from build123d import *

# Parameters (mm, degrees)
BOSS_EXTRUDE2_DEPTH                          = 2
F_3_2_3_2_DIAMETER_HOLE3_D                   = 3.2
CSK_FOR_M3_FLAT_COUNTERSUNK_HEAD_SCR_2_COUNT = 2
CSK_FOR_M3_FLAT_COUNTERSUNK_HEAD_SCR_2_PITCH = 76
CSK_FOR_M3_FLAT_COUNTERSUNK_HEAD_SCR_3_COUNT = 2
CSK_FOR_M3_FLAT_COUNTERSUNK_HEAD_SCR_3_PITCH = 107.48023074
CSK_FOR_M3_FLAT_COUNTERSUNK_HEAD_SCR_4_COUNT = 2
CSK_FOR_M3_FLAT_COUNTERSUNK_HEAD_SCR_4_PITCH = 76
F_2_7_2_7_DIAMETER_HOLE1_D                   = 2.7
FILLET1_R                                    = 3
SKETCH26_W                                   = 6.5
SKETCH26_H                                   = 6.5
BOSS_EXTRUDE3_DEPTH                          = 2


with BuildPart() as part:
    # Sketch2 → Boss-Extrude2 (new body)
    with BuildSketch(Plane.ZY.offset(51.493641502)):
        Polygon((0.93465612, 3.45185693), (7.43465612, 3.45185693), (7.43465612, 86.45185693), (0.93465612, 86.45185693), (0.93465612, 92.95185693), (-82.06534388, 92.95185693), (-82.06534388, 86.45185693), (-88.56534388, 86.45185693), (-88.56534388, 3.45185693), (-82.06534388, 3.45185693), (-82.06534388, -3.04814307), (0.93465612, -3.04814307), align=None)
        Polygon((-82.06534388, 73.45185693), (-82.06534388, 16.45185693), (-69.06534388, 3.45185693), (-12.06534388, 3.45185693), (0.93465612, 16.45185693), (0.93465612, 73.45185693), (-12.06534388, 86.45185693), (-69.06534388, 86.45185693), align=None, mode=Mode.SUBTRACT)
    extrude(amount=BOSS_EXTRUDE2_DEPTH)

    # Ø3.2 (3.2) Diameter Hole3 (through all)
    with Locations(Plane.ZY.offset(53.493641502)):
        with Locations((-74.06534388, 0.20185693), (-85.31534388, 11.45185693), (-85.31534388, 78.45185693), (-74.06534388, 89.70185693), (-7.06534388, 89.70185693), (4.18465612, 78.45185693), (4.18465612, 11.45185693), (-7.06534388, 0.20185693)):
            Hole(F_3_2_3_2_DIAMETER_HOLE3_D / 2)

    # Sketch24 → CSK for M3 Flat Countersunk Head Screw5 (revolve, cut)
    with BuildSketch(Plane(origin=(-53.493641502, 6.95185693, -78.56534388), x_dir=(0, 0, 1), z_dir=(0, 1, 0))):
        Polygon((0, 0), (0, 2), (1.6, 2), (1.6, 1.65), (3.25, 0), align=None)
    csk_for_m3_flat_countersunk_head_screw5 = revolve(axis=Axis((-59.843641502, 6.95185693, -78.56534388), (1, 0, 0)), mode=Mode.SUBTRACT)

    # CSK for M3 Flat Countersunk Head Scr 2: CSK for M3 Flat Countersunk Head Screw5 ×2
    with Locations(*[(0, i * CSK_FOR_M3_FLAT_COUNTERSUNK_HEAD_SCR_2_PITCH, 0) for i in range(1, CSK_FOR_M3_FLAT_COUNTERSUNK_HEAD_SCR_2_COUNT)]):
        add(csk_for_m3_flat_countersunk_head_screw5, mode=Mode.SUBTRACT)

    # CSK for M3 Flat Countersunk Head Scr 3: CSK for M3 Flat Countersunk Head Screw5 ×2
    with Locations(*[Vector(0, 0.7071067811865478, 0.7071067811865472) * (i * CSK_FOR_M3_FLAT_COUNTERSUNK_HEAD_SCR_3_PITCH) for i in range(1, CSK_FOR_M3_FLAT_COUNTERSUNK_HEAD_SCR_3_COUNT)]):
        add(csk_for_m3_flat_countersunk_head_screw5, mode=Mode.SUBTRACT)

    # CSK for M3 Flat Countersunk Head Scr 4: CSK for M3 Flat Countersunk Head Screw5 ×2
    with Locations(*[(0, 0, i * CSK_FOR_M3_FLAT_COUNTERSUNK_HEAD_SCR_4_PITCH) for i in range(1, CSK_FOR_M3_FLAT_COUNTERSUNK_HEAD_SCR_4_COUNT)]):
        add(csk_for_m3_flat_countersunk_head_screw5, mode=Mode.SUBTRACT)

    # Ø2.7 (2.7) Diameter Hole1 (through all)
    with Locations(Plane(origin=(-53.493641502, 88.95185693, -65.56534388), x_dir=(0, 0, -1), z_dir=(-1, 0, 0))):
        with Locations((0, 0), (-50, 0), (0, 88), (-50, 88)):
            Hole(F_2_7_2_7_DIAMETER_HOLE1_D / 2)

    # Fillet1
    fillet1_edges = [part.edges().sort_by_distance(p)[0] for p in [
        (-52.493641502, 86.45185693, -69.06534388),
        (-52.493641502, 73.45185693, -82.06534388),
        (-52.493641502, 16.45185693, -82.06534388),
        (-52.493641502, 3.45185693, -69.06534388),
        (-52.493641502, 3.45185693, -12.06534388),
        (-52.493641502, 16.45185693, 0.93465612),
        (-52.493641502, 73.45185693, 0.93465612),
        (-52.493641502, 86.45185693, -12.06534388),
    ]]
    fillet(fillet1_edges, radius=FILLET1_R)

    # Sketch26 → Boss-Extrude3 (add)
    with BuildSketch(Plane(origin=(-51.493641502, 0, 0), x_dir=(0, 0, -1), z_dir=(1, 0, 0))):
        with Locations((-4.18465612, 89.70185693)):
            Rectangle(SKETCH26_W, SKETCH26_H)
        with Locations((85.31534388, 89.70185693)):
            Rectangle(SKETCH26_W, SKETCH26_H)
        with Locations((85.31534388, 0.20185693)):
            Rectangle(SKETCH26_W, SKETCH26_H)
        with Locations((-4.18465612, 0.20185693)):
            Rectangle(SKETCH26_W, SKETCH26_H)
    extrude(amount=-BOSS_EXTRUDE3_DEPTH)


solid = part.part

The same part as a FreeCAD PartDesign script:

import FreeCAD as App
import Part
import Sketcher
Q = App.Units.Quantity


def edges_at(feature, points):
    """Names of the edges that pass closest to the given points."""
    edges = feature.Shape.Edges
    near = lambda p: min(range(len(edges)), key=lambda i: edges[i].distToShape(Part.Vertex(*p))[0])
    return sorted({f"Edge{near(p) + 1}" for p in points})

doc = App.newDocument("Part")
body = doc.addObject("PartDesign::Body", "Body")

sketch1 = doc.addObject("Sketcher::SketchObject", "Sketch")
body.addObject(sketch1)
sketch1.AttachmentSupport = (doc.YZ_Plane, [""])
sketch1.MapMode = "FlatFace"
sketch1.AttachmentOffset = App.Placement(App.Vector(0, 0, -51.493642), App.Rotation())
sketch1.addGeometry(Part.LineSegment(App.Vector(3, 1, 0), App.Vector(3, 7, 0)), False)
sketch1.addGeometry(Part.LineSegment(App.Vector(3, 7, 0), App.Vector(86, 7, 0)), False)
sketch1.addGeometry(Part.LineSegment(App.Vector(86, 7, 0), App.Vector(86, 1, 0)), False)
sketch1.addGeometry(Part.LineSegment(App.Vector(86, 1, 0), App.Vector(93, 1, 0)), False)
sketch1.addGeometry(Part.LineSegment(App.Vector(93, 1, 0), App.Vector(93, -82, 0)), False)
sketch1.addGeometry(Part.LineSegment(App.Vector(93, -82, 0), App.Vector(86, -82, 0)), False)
sketch1.addGeometry(Part.LineSegment(App.Vector(86, -82, 0), App.Vector(86, -89, 0)), False)
sketch1.addGeometry(Part.LineSegment(App.Vector(86, -89, 0), App.Vector(3, -89, 0)), False)
sketch1.addGeometry(Part.LineSegment(App.Vector(3, -89, 0), App.Vector(3, -82, 0)), False)
sketch1.addGeometry(Part.LineSegment(App.Vector(3, -82, 0), App.Vector(-3, -82, 0)), False)
sketch1.addGeometry(Part.LineSegment(App.Vector(-3, -82, 0), App.Vector(-3, 1, 0)), False)
sketch1.addGeometry(Part.LineSegment(App.Vector(-3, 1, 0), App.Vector(3, 1, 0)), False)
sketch1.addGeometry(Part.LineSegment(App.Vector(16, -82, 0), App.Vector(73, -82, 0)), False)
sketch1.addGeometry(Part.LineSegment(App.Vector(73, -82, 0), App.Vector(86, -69, 0)), False)
sketch1.addGeometry(Part.LineSegment(App.Vector(86, -69, 0), App.Vector(86, -12, 0)), False)
sketch1.addGeometry(Part.LineSegment(App.Vector(86, -12, 0), App.Vector(73, 1, 0)), False)
sketch1.addGeometry(Part.LineSegment(App.Vector(73, 1, 0), App.Vector(16, 1, 0)), False)
sketch1.addGeometry(Part.LineSegment(App.Vector(16, 1, 0), App.Vector(3, -12, 0)), False)
sketch1.addGeometry(Part.LineSegment(App.Vector(3, -12, 0), App.Vector(3, -69, 0)), False)
sketch1.addGeometry(Part.LineSegment(App.Vector(3, -69, 0), App.Vector(16, -82, 0)), False)
sketch1.addConstraint(Sketcher.Constraint("Coincident", 0, 2, 1, 1))
sketch1.addConstraint(Sketcher.Constraint("Coincident", 1, 2, 2, 1))
sketch1.addConstraint(Sketcher.Constraint("Coincident", 2, 2, 3, 1))
sketch1.addConstraint(Sketcher.Constraint("Coincident", 3, 2, 4, 1))
sketch1.addConstraint(Sketcher.Constraint("Coincident", 4, 2, 5, 1))
sketch1.addConstraint(Sketcher.Constraint("Coincident", 5, 2, 6, 1))
sketch1.addConstraint(Sketcher.Constraint("Coincident", 6, 2, 7, 1))
sketch1.addConstraint(Sketcher.Constraint("Coincident", 7, 2, 8, 1))
sketch1.addConstraint(Sketcher.Constraint("Coincident", 8, 2, 9, 1))
sketch1.addConstraint(Sketcher.Constraint("Coincident", 9, 2, 10, 1))
sketch1.addConstraint(Sketcher.Constraint("Coincident", 10, 2, 11, 1))
sketch1.addConstraint(Sketcher.Constraint("Coincident", 11, 2, 0, 1))
sketch1.addConstraint(Sketcher.Constraint("Coincident", 12, 2, 13, 1))
sketch1.addConstraint(Sketcher.Constraint("Coincident", 13, 2, 14, 1))
sketch1.addConstraint(Sketcher.Constraint("Coincident", 14, 2, 15, 1))
sketch1.addConstraint(Sketcher.Constraint("Coincident", 15, 2, 16, 1))
sketch1.addConstraint(Sketcher.Constraint("Coincident", 16, 2, 17, 1))
sketch1.addConstraint(Sketcher.Constraint("Coincident", 17, 2, 18, 1))
sketch1.addConstraint(Sketcher.Constraint("Coincident", 18, 2, 19, 1))
sketch1.addConstraint(Sketcher.Constraint("Coincident", 19, 2, 12, 1))
sketch1.addConstraint(Sketcher.Constraint("Vertical", 0))
sketch1.addConstraint(Sketcher.Constraint("Horizontal", 1))
sketch1.addConstraint(Sketcher.Constraint("Vertical", 2))
sketch1.addConstraint(Sketcher.Constraint("Horizontal", 3))
sketch1.addConstraint(Sketcher.Constraint("Vertical", 4))
sketch1.addConstraint(Sketcher.Constraint("Horizontal", 5))
sketch1.addConstraint(Sketcher.Constraint("Vertical", 6))
sketch1.addConstraint(Sketcher.Constraint("Horizontal", 7))
sketch1.addConstraint(Sketcher.Constraint("Vertical", 8))
sketch1.addConstraint(Sketcher.Constraint("Horizontal", 9))
sketch1.addConstraint(Sketcher.Constraint("Vertical", 10))
sketch1.addConstraint(Sketcher.Constraint("Horizontal", 11))
sketch1.addConstraint(Sketcher.Constraint("Horizontal", 12))
sketch1.addConstraint(Sketcher.Constraint("Vertical", 14))
sketch1.addConstraint(Sketcher.Constraint("Horizontal", 16))
sketch1.addConstraint(Sketcher.Constraint("Vertical", 18))
sketch1.addConstraint(Sketcher.Constraint("Perpendicular", 13, 15))
sketch1.addConstraint(Sketcher.Constraint("Perpendicular", 15, 17))
sketch1.addConstraint(Sketcher.Constraint("Perpendicular", 17, 19))
sketch1.addConstraint(Sketcher.Constraint("Horizontal", 5, 2, 8, 2))
sketch1.addConstraint(Sketcher.Constraint("Horizontal", 3, 2, 10, 2))
sketch1.addConstraint(Sketcher.Constraint("Horizontal", 9, 2, 12, 2))
sketch1.addConstraint(Sketcher.Constraint("Horizontal", 11, 2, 15, 2))
sketch1.addConstraint(Sketcher.Constraint("Horizontal", 14, 2, 17, 2))
sketch1.addConstraint(Sketcher.Constraint("Horizontal", 13, 2, 18, 2))
sketch1.addConstraint(Sketcher.Constraint("Vertical", 2, 2, 5, 2))
sketch1.addConstraint(Sketcher.Constraint("Vertical", 0, 2, 7, 2))
sketch1.addConstraint(Sketcher.Constraint("Vertical", 6, 2, 13, 2))
sketch1.addConstraint(Sketcher.Constraint("Vertical", 12, 2, 15, 2))
sketch1.addConstraint(Sketcher.Constraint("Vertical", 11, 2, 17, 2))
sketch1.addConstraint(Sketcher.Constraint("Vertical", 16, 2, 19, 2))
sketch1.addConstraint(Sketcher.Constraint("Equal", 5, 9))
sketch1.addConstraint(Sketcher.Constraint("Equal", 11, 0))
sketch1.addConstraint(Sketcher.Constraint("Equal", 7, 4))
sketch1.addConstraint(Sketcher.Constraint("Equal", 2, 6))
sketch1.addConstraint(Sketcher.Constraint("DistanceX", 1, 1, 1, 2, 83.0))
sketch1.addConstraint(Sketcher.Constraint("DistanceX", 12, 1, 12, 2, 57.0))
sketch1.addConstraint(Sketcher.Constraint("DistanceX", 3, 1, 3, 2, 6.5))
sketch1.addConstraint(Sketcher.Constraint("DistanceX", -1, 1, 0, 2, 3.451857))
sketch1.addConstraint(Sketcher.Constraint("DistanceY", -1, 1, 0, 2, 7.434656))
pad1 = doc.addObject("PartDesign::Pad", "Pad")
body.addObject(pad1)
pad1.Profile = sketch1
pad1.Length = 2
pad1.Reversed = True

sketch2 = doc.addObject("Sketcher::SketchObject", "Sketch001")
body.addObject(sketch2)
sketch2.AttachmentSupport = (doc.YZ_Plane, [""])
sketch2.MapMode = "FlatFace"
sketch2.AttachmentOffset = App.Placement(App.Vector(0, 0, -53.493642), App.Rotation())
sketch2.addGeometry(Part.Circle(App.Vector(0.2, -74.1, 0), App.Vector(0, 0, 1), 1.6), False)
sketch2.addGeometry(Part.Circle(App.Vector(11.5, -85.3, 0), App.Vector(0, 0, 1), 1.6), False)
sketch2.addGeometry(Part.Circle(App.Vector(78.5, -85.3, 0), App.Vector(0, 0, 1), 1.6), False)
sketch2.addGeometry(Part.Circle(App.Vector(89.7, -74.1, 0), App.Vector(0, 0, 1), 1.6), False)
sketch2.addGeometry(Part.Circle(App.Vector(89.7, -7.1, 0), App.Vector(0, 0, 1), 1.6), False)
sketch2.addGeometry(Part.Circle(App.Vector(78.5, 4.2, 0), App.Vector(0, 0, 1), 1.6), False)
sketch2.addGeometry(Part.Circle(App.Vector(11.5, 4.2, 0), App.Vector(0, 0, 1), 1.6), False)
sketch2.addGeometry(Part.Circle(App.Vector(0.2, -7.1, 0), App.Vector(0, 0, 1), 1.6), False)
sketch2.addConstraint(Sketcher.Constraint("Equal", 0, 1))
sketch2.addConstraint(Sketcher.Constraint("Equal", 1, 2))
sketch2.addConstraint(Sketcher.Constraint("Equal", 2, 3))
sketch2.addConstraint(Sketcher.Constraint("Equal", 3, 4))
sketch2.addConstraint(Sketcher.Constraint("Equal", 4, 5))
sketch2.addConstraint(Sketcher.Constraint("Equal", 5, 6))
sketch2.addConstraint(Sketcher.Constraint("Equal", 6, 7))
sketch2.addConstraint(Sketcher.Constraint("Horizontal", 1, 3, 2, 3))
sketch2.addConstraint(Sketcher.Constraint("Horizontal", 0, 3, 3, 3))
sketch2.addConstraint(Sketcher.Constraint("Horizontal", 5, 3, 6, 3))
sketch2.addConstraint(Sketcher.Constraint("Horizontal", 4, 3, 7, 3))
sketch2.addConstraint(Sketcher.Constraint("Vertical", 3, 3, 4, 3))
sketch2.addConstraint(Sketcher.Constraint("Vertical", 2, 3, 5, 3))
sketch2.addConstraint(Sketcher.Constraint("Vertical", 1, 3, 6, 3))
sketch2.addConstraint(Sketcher.Constraint("Vertical", 0, 3, 7, 3))
sketch2.addConstraint(Sketcher.Constraint("Diameter", 0, 3.2))
sketch2.addConstraint(Sketcher.Constraint("DistanceX", 1, 3, 2, 3, 67.0))
sketch2.addConstraint(Sketcher.Constraint("DistanceY", 3, 3, 4, 3, 67.0))
sketch2.addConstraint(Sketcher.Constraint("DistanceX", 0, 3, 3, 3, 89.5))
sketch2.addConstraint(Sketcher.Constraint("DistanceY", 2, 3, 5, 3, 89.5))
sketch2.addConstraint(Sketcher.Constraint("DistanceX", 0, 3, 1, 3, 11.25))
sketch2.addConstraint(Sketcher.Constraint("DistanceY", 1, 3, 0, 3, 11.25))
sketch2.addConstraint(Sketcher.Constraint("DistanceX", -1, 1, 0, 3, 0.201857))
sketch2.addConstraint(Sketcher.Constraint("DistanceY", 0, 3, -1, 1, 74.065344))
doc.recompute()
hole = doc.addObject("PartDesign::Hole", "Hole")
body.addObject(hole)
hole.Profile = sketch2
hole.ThreadType = "None"
hole.Diameter = 3.2
hole.DepthType = "ThroughAll"
hole.Reversed = True

sketch3 = doc.addObject("Sketcher::SketchObject", "Sketch002")
body.addObject(sketch3)
sketch3.AttachmentSupport = (doc.XZ_Plane, [""])
sketch3.MapMode = "FlatFace"
sketch3.AttachmentOffset = App.Placement(App.Vector(0, 0, -6.951857), App.Rotation())
sketch3.addGeometry(Part.LineSegment(App.Vector(-51.49, -78.57, 0), App.Vector(-53.49, -78.57, 0)), False)
sketch3.addGeometry(Part.LineSegment(App.Vector(-53.49, -78.57, 0), App.Vector(-53.49, -75.32, 0)), False)
sketch3.addGeometry(Part.LineSegment(App.Vector(-53.49, -75.32, 0), App.Vector(-51.84, -76.97, 0)), False)
sketch3.addGeometry(Part.LineSegment(App.Vector(-51.84, -76.97, 0), App.Vector(-51.49, -76.97, 0)), False)
sketch3.addGeometry(Part.LineSegment(App.Vector(-51.49, -76.97, 0), App.Vector(-51.49, -78.57, 0)), False)
sketch3.addGeometry(Part.LineSegment(App.Vector(-53.49, -78.57, 0), App.Vector(-51.49, -78.57, 0)), True)
sketch3.addConstraint(Sketcher.Constraint("Coincident", 0, 2, 1, 1))
sketch3.addConstraint(Sketcher.Constraint("Coincident", 1, 2, 2, 1))
sketch3.addConstraint(Sketcher.Constraint("Coincident", 2, 2, 3, 1))
sketch3.addConstraint(Sketcher.Constraint("Coincident", 3, 2, 4, 1))
sketch3.addConstraint(Sketcher.Constraint("Coincident", 4, 2, 0, 1))
sketch3.addConstraint(Sketcher.Constraint("Horizontal", 0))
sketch3.addConstraint(Sketcher.Constraint("Vertical", 1))
sketch3.addConstraint(Sketcher.Constraint("Horizontal", 3))
sketch3.addConstraint(Sketcher.Constraint("Vertical", 4))
sketch3.addConstraint(Sketcher.Constraint("Horizontal", 5))
sketch3.addConstraint(Sketcher.Constraint("Coincident", 5, 1, 0, 2))
sketch3.addConstraint(Sketcher.Constraint("Vertical", 3, 2, 5, 2))
sketch3.addConstraint(Sketcher.Constraint("DistanceX", 0, 2, 0, 1, 2.0))
sketch3.addConstraint(Sketcher.Constraint("Angle", 2, Q("-45 deg")))
sketch3.addConstraint(Sketcher.Constraint("DistanceY", 4, 2, 4, 1, 1.6))
sketch3.addConstraint(Sketcher.Constraint("DistanceX", 3, 1, 3, 2, 0.35))
sketch3.addConstraint(Sketcher.Constraint("DistanceX", 0, 2, -1, 1, 53.493642))
sketch3.addConstraint(Sketcher.Constraint("DistanceY", 0, 2, -1, 1, 78.565344))
groove = doc.addObject("PartDesign::Groove", "Groove")
body.addObject(groove)
groove.Profile = sketch3
groove.ReferenceAxis = (sketch3, ["Axis0"])
groove.Angle = 360
doc.recompute()

linearpattern = doc.addObject("PartDesign::LinearPattern", "LinearPattern")
body.addObject(linearpattern)
linearpattern.Originals = [groove]
linearpattern.Direction = (doc.Y_Axis, [""])
linearpattern.Mode = "offset"
linearpattern.Offset = 76
linearpattern.Occurrences = 2
body.Tip = linearpattern
doc.recompute()

datumline = doc.addObject("PartDesign::Line", "DatumLine")
body.addObject(datumline)
datumline.Placement = App.Placement(App.Vector(0, 0, 0), App.Rotation(App.Vector(0, 0, 1), App.Vector(0, 0.707106781, 0.707106781)))
linearpattern2 = doc.addObject("PartDesign::LinearPattern", "LinearPattern001")
body.addObject(linearpattern2)
linearpattern2.Originals = [groove]
linearpattern2.Direction = (datumline, [""])
linearpattern2.Mode = "offset"
linearpattern2.Offset = 107.480231
linearpattern2.Occurrences = 2
body.Tip = linearpattern2
doc.recompute()

linearpattern3 = doc.addObject("PartDesign::LinearPattern", "LinearPattern002")
body.addObject(linearpattern3)
linearpattern3.Originals = [groove]
linearpattern3.Direction = (doc.Z_Axis, [""])
linearpattern3.Mode = "offset"
linearpattern3.Offset = 76
linearpattern3.Occurrences = 2
body.Tip = linearpattern3

sketch4 = doc.addObject("Sketcher::SketchObject", "Sketch003")
body.addObject(sketch4)
sketch4.AttachmentSupport = (doc.YZ_Plane, [""])
sketch4.MapMode = "FlatFace"
sketch4.AttachmentOffset = App.Placement(App.Vector(0, 0, -53.493642), App.Rotation())
sketch4.addGeometry(Part.Circle(App.Vector(89, -65.6, 0), App.Vector(0, 0, 1), 1.4), False)
sketch4.addGeometry(Part.Circle(App.Vector(89, -15.6, 0), App.Vector(0, 0, 1), 1.4), False)
sketch4.addGeometry(Part.Circle(App.Vector(1, -65.6, 0), App.Vector(0, 0, 1), 1.4), False)
sketch4.addGeometry(Part.Circle(App.Vector(1, -15.6, 0), App.Vector(0, 0, 1), 1.4), False)
sketch4.addConstraint(Sketcher.Constraint("Equal", 0, 1))
sketch4.addConstraint(Sketcher.Constraint("Equal", 1, 2))
sketch4.addConstraint(Sketcher.Constraint("Equal", 2, 3))
sketch4.addConstraint(Sketcher.Constraint("Horizontal", 0, 3, 2, 3))
sketch4.addConstraint(Sketcher.Constraint("Horizontal", 1, 3, 3, 3))
sketch4.addConstraint(Sketcher.Constraint("Vertical", 0, 3, 1, 3))
sketch4.addConstraint(Sketcher.Constraint("Vertical", 2, 3, 3, 3))
sketch4.addConstraint(Sketcher.Constraint("Diameter", 0, 2.7))
sketch4.addConstraint(Sketcher.Constraint("DistanceY", 0, 3, 1, 3, 50.0))
sketch4.addConstraint(Sketcher.Constraint("DistanceX", 2, 3, 0, 3, 88.0))
sketch4.addConstraint(Sketcher.Constraint("DistanceX", -1, 1, 0, 3, 88.951857))
sketch4.addConstraint(Sketcher.Constraint("DistanceY", 0, 3, -1, 1, 65.565344))
doc.recompute()
hole2 = doc.addObject("PartDesign::Hole", "Hole001")
body.addObject(hole2)
hole2.Profile = sketch4
hole2.ThreadType = "None"
hole2.Diameter = 2.7
hole2.DepthType = "ThroughAll"
hole2.Reversed = True
doc.recompute()

fillet = doc.addObject("PartDesign::Fillet", "Fillet")
body.addObject(fillet)
fillet.Base = (hole2, edges_at(hole2, [
    (-52.494, 86.452, -69.065),
    (-52.494, 73.452, -82.065),
    (-52.494, 16.452, -82.065),
    (-52.494, 3.452, -69.065),
    (-52.494, 3.452, -12.065),
    (-52.494, 16.452, 0.935),
    (-52.494, 73.452, 0.935),
    (-52.494, 86.452, -12.065),
]))
fillet.Radius = 3

sketch5 = doc.addObject("Sketcher::SketchObject", "Sketch004")
body.addObject(sketch5)
sketch5.AttachmentSupport = (doc.YZ_Plane, [""])
sketch5.MapMode = "FlatFace"
sketch5.AttachmentOffset = App.Placement(App.Vector(0, 0, -51.493642), App.Rotation())
sketch5.addGeometry(Part.LineSegment(App.Vector(93, 7, 0), App.Vector(86, 7, 0)), False)
sketch5.addGeometry(Part.LineSegment(App.Vector(86, 7, 0), App.Vector(86, 1, 0)), False)
sketch5.addGeometry(Part.LineSegment(App.Vector(86, 1, 0), App.Vector(93, 1, 0)), False)
sketch5.addGeometry(Part.LineSegment(App.Vector(93, 1, 0), App.Vector(93, 7, 0)), False)
sketch5.addGeometry(Part.LineSegment(App.Vector(93, -82, 0), App.Vector(86, -82, 0)), False)
sketch5.addGeometry(Part.LineSegment(App.Vector(86, -82, 0), App.Vector(86, -89, 0)), False)
sketch5.addGeometry(Part.LineSegment(App.Vector(86, -89, 0), App.Vector(93, -89, 0)), False)
sketch5.addGeometry(Part.LineSegment(App.Vector(93, -89, 0), App.Vector(93, -82, 0)), False)
sketch5.addGeometry(Part.LineSegment(App.Vector(3, -82, 0), App.Vector(-3, -82, 0)), False)
sketch5.addGeometry(Part.LineSegment(App.Vector(-3, -82, 0), App.Vector(-3, -89, 0)), False)
sketch5.addGeometry(Part.LineSegment(App.Vector(-3, -89, 0), App.Vector(3, -89, 0)), False)
sketch5.addGeometry(Part.LineSegment(App.Vector(3, -89, 0), App.Vector(3, -82, 0)), False)
sketch5.addGeometry(Part.LineSegment(App.Vector(3, 7, 0), App.Vector(-3, 7, 0)), False)
sketch5.addGeometry(Part.LineSegment(App.Vector(-3, 7, 0), App.Vector(-3, 1, 0)), False)
sketch5.addGeometry(Part.LineSegment(App.Vector(-3, 1, 0), App.Vector(3, 1, 0)), False)
sketch5.addGeometry(Part.LineSegment(App.Vector(3, 1, 0), App.Vector(3, 7, 0)), False)
sketch5.addConstraint(Sketcher.Constraint("Coincident", 0, 2, 1, 1))
sketch5.addConstraint(Sketcher.Constraint("Coincident", 1, 2, 2, 1))
sketch5.addConstraint(Sketcher.Constraint("Coincident", 2, 2, 3, 1))
sketch5.addConstraint(Sketcher.Constraint("Coincident", 3, 2, 0, 1))
sketch5.addConstraint(Sketcher.Constraint("Coincident", 4, 2, 5, 1))
sketch5.addConstraint(Sketcher.Constraint("Coincident", 5, 2, 6, 1))
sketch5.addConstraint(Sketcher.Constraint("Coincident", 6, 2, 7, 1))
sketch5.addConstraint(Sketcher.Constraint("Coincident", 7, 2, 4, 1))
sketch5.addConstraint(Sketcher.Constraint("Coincident", 8, 2, 9, 1))
sketch5.addConstraint(Sketcher.Constraint("Coincident", 9, 2, 10, 1))
sketch5.addConstraint(Sketcher.Constraint("Coincident", 10, 2, 11, 1))
sketch5.addConstraint(Sketcher.Constraint("Coincident", 11, 2, 8, 1))
sketch5.addConstraint(Sketcher.Constraint("Coincident", 12, 2, 13, 1))
sketch5.addConstraint(Sketcher.Constraint("Coincident", 13, 2, 14, 1))
sketch5.addConstraint(Sketcher.Constraint("Coincident", 14, 2, 15, 1))
sketch5.addConstraint(Sketcher.Constraint("Coincident", 15, 2, 12, 1))
sketch5.addConstraint(Sketcher.Constraint("Horizontal", 0))
sketch5.addConstraint(Sketcher.Constraint("Vertical", 1))
sketch5.addConstraint(Sketcher.Constraint("Horizontal", 2))
sketch5.addConstraint(Sketcher.Constraint("Vertical", 3))
sketch5.addConstraint(Sketcher.Constraint("Horizontal", 4))
sketch5.addConstraint(Sketcher.Constraint("Vertical", 5))
sketch5.addConstraint(Sketcher.Constraint("Horizontal", 6))
sketch5.addConstraint(Sketcher.Constraint("Vertical", 7))
sketch5.addConstraint(Sketcher.Constraint("Horizontal", 8))
sketch5.addConstraint(Sketcher.Constraint("Vertical", 9))
sketch5.addConstraint(Sketcher.Constraint("Horizontal", 10))
sketch5.addConstraint(Sketcher.Constraint("Vertical", 11))
sketch5.addConstraint(Sketcher.Constraint("Horizontal", 12))
sketch5.addConstraint(Sketcher.Constraint("Vertical", 13))
sketch5.addConstraint(Sketcher.Constraint("Horizontal", 14))
sketch5.addConstraint(Sketcher.Constraint("Vertical", 15))
sketch5.addConstraint(Sketcher.Constraint("Horizontal", 7, 2, 8, 2))
sketch5.addConstraint(Sketcher.Constraint("Horizontal", 6, 2, 9, 2))
sketch5.addConstraint(Sketcher.Constraint("Horizontal", 3, 2, 12, 2))
sketch5.addConstraint(Sketcher.Constraint("Horizontal", 2, 2, 13, 2))
sketch5.addConstraint(Sketcher.Constraint("Vertical", 1, 2, 4, 2))
sketch5.addConstraint(Sketcher.Constraint("Vertical", 3, 2, 6, 2))
sketch5.addConstraint(Sketcher.Constraint("Vertical", 9, 2, 12, 2))
sketch5.addConstraint(Sketcher.Constraint("Vertical", 11, 2, 14, 2))
sketch5.addConstraint(Sketcher.Constraint("Equal", 6, 8))
sketch5.addConstraint(Sketcher.Constraint("Equal", 14, 1))
sketch5.addConstraint(Sketcher.Constraint("Equal", 3, 5))
sketch5.addConstraint(Sketcher.Constraint("DistanceX", 0, 2, 0, 1, 6.5))
sketch5.addConstraint(Sketcher.Constraint("DistanceY", 4, 2, 1, 2, 83.0))
sketch5.addConstraint(Sketcher.Constraint("DistanceX", 8, 2, 7, 2, 96.0))
sketch5.addConstraint(Sketcher.Constraint("DistanceX", -1, 1, 0, 2, 86.451857))
sketch5.addConstraint(Sketcher.Constraint("DistanceY", -1, 1, 0, 2, 7.434656))
pad2 = doc.addObject("PartDesign::Pad", "Pad001")
body.addObject(pad2)
pad2.Profile = sketch5
pad2.Length = 2
pad2.Reversed = True

doc.recompute()
